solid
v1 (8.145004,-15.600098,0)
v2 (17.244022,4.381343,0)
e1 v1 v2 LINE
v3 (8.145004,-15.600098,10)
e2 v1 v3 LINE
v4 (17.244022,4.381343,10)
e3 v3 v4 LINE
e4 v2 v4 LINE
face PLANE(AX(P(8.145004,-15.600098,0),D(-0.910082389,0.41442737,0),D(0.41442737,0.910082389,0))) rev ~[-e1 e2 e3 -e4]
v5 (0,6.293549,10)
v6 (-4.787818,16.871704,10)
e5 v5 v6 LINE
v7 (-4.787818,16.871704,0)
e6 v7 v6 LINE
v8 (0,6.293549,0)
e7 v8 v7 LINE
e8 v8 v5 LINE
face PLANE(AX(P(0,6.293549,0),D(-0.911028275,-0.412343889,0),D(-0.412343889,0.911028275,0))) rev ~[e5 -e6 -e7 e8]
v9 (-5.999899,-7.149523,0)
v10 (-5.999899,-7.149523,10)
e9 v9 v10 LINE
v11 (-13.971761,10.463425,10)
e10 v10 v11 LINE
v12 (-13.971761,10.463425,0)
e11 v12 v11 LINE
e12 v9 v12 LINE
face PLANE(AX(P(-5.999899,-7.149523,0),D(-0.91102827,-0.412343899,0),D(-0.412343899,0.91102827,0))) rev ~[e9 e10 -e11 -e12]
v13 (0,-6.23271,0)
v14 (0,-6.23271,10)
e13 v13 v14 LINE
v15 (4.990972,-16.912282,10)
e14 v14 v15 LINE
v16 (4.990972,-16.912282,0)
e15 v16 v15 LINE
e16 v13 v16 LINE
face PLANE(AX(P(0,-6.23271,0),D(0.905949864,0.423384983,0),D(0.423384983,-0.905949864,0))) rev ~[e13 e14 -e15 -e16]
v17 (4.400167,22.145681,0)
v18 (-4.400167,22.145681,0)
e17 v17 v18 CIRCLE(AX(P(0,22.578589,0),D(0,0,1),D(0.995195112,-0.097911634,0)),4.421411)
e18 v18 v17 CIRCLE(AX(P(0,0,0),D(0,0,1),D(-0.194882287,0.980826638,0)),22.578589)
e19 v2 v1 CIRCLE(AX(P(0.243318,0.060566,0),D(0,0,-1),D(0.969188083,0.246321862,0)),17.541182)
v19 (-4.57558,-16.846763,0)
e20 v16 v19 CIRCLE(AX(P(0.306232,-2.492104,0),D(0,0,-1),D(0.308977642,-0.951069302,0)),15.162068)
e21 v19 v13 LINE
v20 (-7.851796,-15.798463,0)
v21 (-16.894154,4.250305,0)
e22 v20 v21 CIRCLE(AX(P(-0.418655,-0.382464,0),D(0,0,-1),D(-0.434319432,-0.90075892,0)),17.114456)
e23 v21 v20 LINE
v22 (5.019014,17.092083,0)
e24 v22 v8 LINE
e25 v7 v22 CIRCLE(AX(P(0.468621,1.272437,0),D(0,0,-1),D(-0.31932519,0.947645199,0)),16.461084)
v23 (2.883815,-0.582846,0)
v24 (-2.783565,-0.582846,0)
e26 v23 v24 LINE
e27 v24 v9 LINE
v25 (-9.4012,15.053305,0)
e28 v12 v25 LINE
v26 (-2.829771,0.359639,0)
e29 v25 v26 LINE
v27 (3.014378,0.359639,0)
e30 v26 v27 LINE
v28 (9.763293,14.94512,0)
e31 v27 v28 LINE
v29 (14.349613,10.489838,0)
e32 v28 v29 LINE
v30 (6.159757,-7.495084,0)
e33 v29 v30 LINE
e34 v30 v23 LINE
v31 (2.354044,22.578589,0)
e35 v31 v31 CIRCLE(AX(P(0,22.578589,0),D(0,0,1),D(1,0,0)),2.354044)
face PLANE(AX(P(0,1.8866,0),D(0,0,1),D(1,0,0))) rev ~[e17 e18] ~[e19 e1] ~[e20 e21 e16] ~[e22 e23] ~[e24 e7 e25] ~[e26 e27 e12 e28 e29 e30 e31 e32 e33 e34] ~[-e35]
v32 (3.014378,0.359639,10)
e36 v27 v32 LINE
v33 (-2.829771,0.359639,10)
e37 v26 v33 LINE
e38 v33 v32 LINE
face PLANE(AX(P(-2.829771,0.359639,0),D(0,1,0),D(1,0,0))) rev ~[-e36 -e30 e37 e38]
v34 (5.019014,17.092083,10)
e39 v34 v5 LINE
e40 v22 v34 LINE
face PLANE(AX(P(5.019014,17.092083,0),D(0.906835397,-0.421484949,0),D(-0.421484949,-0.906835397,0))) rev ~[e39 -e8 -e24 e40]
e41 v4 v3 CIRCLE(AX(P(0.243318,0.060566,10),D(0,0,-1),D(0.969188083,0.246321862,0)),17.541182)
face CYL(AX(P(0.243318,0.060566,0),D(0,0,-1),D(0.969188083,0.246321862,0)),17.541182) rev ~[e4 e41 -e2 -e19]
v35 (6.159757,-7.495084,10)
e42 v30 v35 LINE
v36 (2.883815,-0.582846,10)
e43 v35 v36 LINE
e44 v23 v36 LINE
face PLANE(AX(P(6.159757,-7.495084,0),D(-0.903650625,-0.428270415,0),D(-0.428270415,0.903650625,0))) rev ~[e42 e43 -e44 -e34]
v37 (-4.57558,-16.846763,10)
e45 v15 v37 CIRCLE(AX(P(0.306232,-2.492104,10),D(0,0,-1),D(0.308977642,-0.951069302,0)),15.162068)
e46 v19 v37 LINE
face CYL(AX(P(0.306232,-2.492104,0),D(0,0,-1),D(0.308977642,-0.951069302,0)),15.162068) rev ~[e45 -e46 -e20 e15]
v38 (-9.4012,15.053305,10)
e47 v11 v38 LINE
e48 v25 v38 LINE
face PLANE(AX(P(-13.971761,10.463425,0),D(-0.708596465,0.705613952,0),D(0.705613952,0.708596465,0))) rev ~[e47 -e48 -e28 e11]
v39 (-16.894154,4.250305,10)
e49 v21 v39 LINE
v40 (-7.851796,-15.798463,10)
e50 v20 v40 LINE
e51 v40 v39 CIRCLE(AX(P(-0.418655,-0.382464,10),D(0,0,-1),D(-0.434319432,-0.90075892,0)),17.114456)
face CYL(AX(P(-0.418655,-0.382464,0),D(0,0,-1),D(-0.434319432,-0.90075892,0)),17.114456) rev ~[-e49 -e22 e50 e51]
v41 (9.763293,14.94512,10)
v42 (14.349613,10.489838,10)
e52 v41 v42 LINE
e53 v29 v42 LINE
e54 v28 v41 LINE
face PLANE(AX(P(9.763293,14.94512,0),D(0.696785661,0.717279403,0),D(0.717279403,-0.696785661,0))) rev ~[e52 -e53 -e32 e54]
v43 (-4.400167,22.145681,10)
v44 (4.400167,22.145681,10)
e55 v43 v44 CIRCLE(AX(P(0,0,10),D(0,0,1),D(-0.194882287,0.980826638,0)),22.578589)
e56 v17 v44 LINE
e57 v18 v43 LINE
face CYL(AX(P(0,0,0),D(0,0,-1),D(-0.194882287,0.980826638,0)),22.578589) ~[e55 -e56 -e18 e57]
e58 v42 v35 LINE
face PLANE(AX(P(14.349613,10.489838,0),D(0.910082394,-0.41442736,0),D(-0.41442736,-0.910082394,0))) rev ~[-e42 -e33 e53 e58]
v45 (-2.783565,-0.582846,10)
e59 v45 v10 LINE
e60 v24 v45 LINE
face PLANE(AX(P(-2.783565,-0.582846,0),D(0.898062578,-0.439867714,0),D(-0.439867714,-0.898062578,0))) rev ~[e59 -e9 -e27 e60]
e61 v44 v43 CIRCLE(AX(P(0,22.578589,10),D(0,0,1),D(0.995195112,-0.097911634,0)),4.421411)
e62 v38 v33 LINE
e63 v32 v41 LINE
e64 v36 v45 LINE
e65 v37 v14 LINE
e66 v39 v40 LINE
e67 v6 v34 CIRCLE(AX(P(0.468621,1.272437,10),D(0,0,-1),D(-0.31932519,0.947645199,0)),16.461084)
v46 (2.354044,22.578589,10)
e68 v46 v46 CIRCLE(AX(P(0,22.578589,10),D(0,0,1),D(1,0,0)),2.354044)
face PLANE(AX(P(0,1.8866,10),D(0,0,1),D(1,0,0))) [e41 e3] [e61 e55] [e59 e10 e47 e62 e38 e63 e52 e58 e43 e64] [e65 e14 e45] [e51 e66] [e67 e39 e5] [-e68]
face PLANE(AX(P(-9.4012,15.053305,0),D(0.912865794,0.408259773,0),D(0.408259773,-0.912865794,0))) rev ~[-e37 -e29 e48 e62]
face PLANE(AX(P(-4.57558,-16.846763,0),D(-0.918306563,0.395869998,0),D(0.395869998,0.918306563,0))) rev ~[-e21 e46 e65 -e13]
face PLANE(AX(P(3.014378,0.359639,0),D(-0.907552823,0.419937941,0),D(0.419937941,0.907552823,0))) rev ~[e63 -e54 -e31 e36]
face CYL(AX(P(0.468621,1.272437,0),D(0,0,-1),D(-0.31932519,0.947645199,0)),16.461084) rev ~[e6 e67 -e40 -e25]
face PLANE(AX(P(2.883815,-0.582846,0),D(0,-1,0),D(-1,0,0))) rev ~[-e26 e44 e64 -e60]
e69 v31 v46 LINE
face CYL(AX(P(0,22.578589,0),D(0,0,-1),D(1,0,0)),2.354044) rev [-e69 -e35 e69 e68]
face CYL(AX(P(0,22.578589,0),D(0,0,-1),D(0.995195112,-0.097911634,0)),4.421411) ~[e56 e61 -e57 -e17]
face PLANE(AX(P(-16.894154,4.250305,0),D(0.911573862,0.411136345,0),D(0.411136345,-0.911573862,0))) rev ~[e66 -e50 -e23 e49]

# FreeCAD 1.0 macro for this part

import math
import FreeCAD as App
import Part
import Sketcher

V = App.Vector
Q = App.Units.Quantity

doc = App.newDocument("Part")
params = doc.addObject("Spreadsheet::Sheet", "Params")
for row, (alias, value) in enumerate([
    ("pad1_length", "10 mm"),
], start=1):
    params.set(f"A{row}", alias)
    params.set(f"B{row}", "=" + value)
    params.setAlias(f"B{row}", alias)

body = doc.addObject("PartDesign::Body", "Body")

# Sketch on XY plane
sketch1 = body.newObject("Sketcher::SketchObject", "Sketch")
sketch1.AttachmentSupport = (doc.getObject("XY_Plane"), [""])
sketch1.MapMode = "FlatFace"
sketch1.addGeometry([
    Part.ArcOfCircle(Part.Circle(V(0, 22.578589, 0), V(0, 0, 1), 4.421411), math.radians(-5.618926), math.radians(185.618926)),  # 0
    Part.ArcOfCircle(Part.Circle(V(0, 0, 0), V(0, 0, 1), 22.578589), math.radians(101.237847), math.radians(438.762153)),  # 1
    Part.LineSegment(V(-16.894154, 4.250305, 0), V(-7.851796, -15.798463, 0)),  # 2
    Part.ArcOfCircle(Part.Circle(V(-0.418655, -0.382464, 0), V(0, 0, 1), 17.114456), math.radians(164.294473), math.radians(244.258004)),  # 3
    Part.ArcOfCircle(Part.Circle(V(0.306232, -2.492104, 0), V(0, 0, 1), 15.162068), math.radians(-108.782427), math.radians(-72.002371)),  # 4
    Part.LineSegment(V(-4.57558, -16.846763, 0), V(0, -6.23271, 0)),  # 5
    Part.LineSegment(V(0, -6.23271, 0), V(4.990972, -16.912282, 0)),  # 6
    Part.ArcOfCircle(Part.Circle(V(0.243318, 0.060566, 0), V(0, 0, 1), 17.541182), math.radians(-63.226486), math.radians(14.259965)),  # 7
    Part.LineSegment(V(8.145004, -15.600098, 0), V(17.244022, 4.381343, 0)),  # 8
    Part.ArcOfCircle(Part.Circle(V(0.468621, 1.272437, 0), V(0, 0, 1), 16.461084), math.radians(73.952547), math.radians(108.62212)),  # 9
    Part.LineSegment(V(5.019014, 17.092083, 0), V(0, 6.293549, 0)),  # 10
    Part.LineSegment(V(0, 6.293549, 0), V(-4.787818, 16.871704, 0)),  # 11
    Part.Circle(V(0, 22.578589, 0), V(0, 0, 1), 2.354044),  # 12
    Part.LineSegment(V(2.883815, -0.582846, 0), V(-2.783565, -0.582846, 0)),  # 13
    Part.LineSegment(V(-2.783565, -0.582846, 0), V(-5.999899, -7.149523, 0)),  # 14
    Part.LineSegment(V(-5.999899, -7.149523, 0), V(-13.971761, 10.463425, 0)),  # 15
    Part.LineSegment(V(-13.971761, 10.463425, 0), V(-9.4012, 15.053305, 0)),  # 16
    Part.LineSegment(V(-9.4012, 15.053305, 0), V(-2.829771, 0.359639, 0)),  # 17
    Part.LineSegment(V(-2.829771, 0.359639, 0), V(3.014378, 0.359639, 0)),  # 18
    Part.LineSegment(V(3.014378, 0.359639, 0), V(9.763293, 14.94512, 0)),  # 19
    Part.LineSegment(V(9.763293, 14.94512, 0), V(14.349613, 10.489838, 0)),  # 20
    Part.LineSegment(V(14.349613, 10.489838, 0), V(6.159757, -7.495084, 0)),  # 21
    Part.LineSegment(V(6.159757, -7.495084, 0), V(2.883815, -0.582846, 0)),  # 22
], False)
sketch1.addConstraint([
    Sketcher.Constraint("Coincident", 0, 1, 1, 2),
    Sketcher.Constraint("Coincident", 1, 1, 0, 2),
    Sketcher.Constraint("Coincident", 2, 1, 3, 1),
    Sketcher.Constraint("Coincident", 3, 2, 2, 2),
    Sketcher.Constraint("Coincident", 4, 1, 5, 1),
    Sketcher.Constraint("Coincident", 5, 2, 6, 1),
    Sketcher.Constraint("Coincident", 6, 2, 4, 2),
    Sketcher.Constraint("Coincident", 7, 1, 8, 1),
    Sketcher.Constraint("Coincident", 8, 2, 7, 2),
    Sketcher.Constraint("Coincident", 9, 1, 10, 1),
    Sketcher.Constraint("Coincident", 10, 2, 11, 1),
    Sketcher.Constraint("Coincident", 11, 2, 9, 2),
    Sketcher.Constraint("Coincident", 13, 2, 14, 1),
    Sketcher.Constraint("Coincident", 14, 2, 15, 1),
    Sketcher.Constraint("Coincident", 15, 2, 16, 1),
    Sketcher.Constraint("Coincident", 16, 2, 17, 1),
    Sketcher.Constraint("Coincident", 17, 2, 18, 1),
    Sketcher.Constraint("Coincident", 18, 2, 19, 1),
    Sketcher.Constraint("Coincident", 19, 2, 20, 1),
    Sketcher.Constraint("Coincident", 20, 2, 21, 1),
    Sketcher.Constraint("Coincident", 21, 2, 22, 1),
    Sketcher.Constraint("Coincident", 22, 2, 13, 1),
    Sketcher.Constraint("Horizontal", 13),
    Sketcher.Constraint("Horizontal", 18),
    Sketcher.Constraint("Coincident", 1, 3, -1, 1),
    Sketcher.Constraint("Coincident", 12, 3, 0, 3),
    Sketcher.Constraint("PointOnObject", 0, 3, -2),
    Sketcher.Constraint("PointOnObject", 5, 2, -2),
    Sketcher.Constraint("PointOnObject", 10, 2, -2),
    Sketcher.Constraint("Parallel", 11, 15),
    Sketcher.Constraint("Parallel", 8, 21),
    Sketcher.Constraint("Radius", 0, Q("4.421411 mm")),
    Sketcher.Constraint("Radius", 1, Q("22.578589 mm")),
    Sketcher.Constraint("Radius", 4, Q("15.162068 mm")),
    Sketcher.Constraint("Radius", 7, Q("17.541182 mm")),
    Sketcher.Constraint("Diameter", 12, Q("4.708088 mm")),
    Sketcher.Constraint("Radius", 3, Q("17.114456 mm")),
    Sketcher.Constraint("Radius", 9, Q("16.461084 mm")),
    Sketcher.Constraint("DistanceY", 3, 2, 3, 3, Q("15.415999 mm")),
    Sketcher.Constraint("DistanceX", 13, 2, 13, 1, Q("5.66738 mm")),
    Sketcher.Constraint("DistanceX", 18, 1, 18, 2, Q("5.844149 mm")),
    Sketcher.Constraint("DistanceX", 14, 2, -1, 1, Q("5.999899 mm")),
    Sketcher.Constraint("DistanceX", 16, 2, -1, 1, Q("9.4012 mm")),
    Sketcher.Constraint("DistanceY", 3, 3, 9, 3, Q("1.654901 mm")),
    Sketcher.Constraint("DistanceX", 2, 1, 3, 3, Q("16.475499 mm")),
    Sketcher.Constraint("DistanceY", 4, 1, 3, 2, Q("1.0483 mm")),
    Sketcher.Constraint("DistanceX", 3, 2, 7, 1, Q("15.9968 mm")),
    Sketcher.Constraint("DistanceX", 9, 3, 8, 2, Q("16.775401 mm")),
    Sketcher.Constraint("DistanceY", 16, 2, 11, 2, Q("1.818399 mm")),
    Sketcher.Constraint("DistanceX", 9, 1, 20, 2, Q("9.330599 mm")),
    Sketcher.Constraint("DistanceY", 18, 2, 20, 2, Q("10.130199 mm")),
    Sketcher.Constraint("DistanceY", 6, 2, 21, 2, Q("9.417198 mm")),
    Sketcher.Constraint("Distance", 5, Q("11.558289 mm")),
    Sketcher.Constraint("Distance", 6, Q("11.788259 mm")),
    Sketcher.Constraint("Distance", 8, Q("21.95564 mm")),
    Sketcher.Constraint("Distance", 10, Q("11.907932 mm")),
    Sketcher.Constraint("Distance", 14, Q("7.312048 mm")),
    Sketcher.Constraint("Distance", 19, Q("16.07122 mm")),
    Sketcher.Constraint("Distance", 20, Q("6.394049 mm")),
    Sketcher.Constraint("Distance", 21, Q("19.761861 mm")),
    Sketcher.Constraint("DistanceY", -1, 1, 0, 3, Q("22.578589 mm")),
    Sketcher.Constraint("DistanceX", -1, 1, 4, 3, Q("0.306232 mm")),
    Sketcher.Constraint("DistanceX", -1, 1, 9, 3, Q("0.468621 mm")),
    Sketcher.Constraint("DistanceX", 4, 1, -1, 1, Q("4.57558 mm")),
    Sketcher.Constraint("DistanceY", 5, 2, -1, 1, Q("6.23271 mm")),
    Sketcher.Constraint("DistanceY", -1, 1, 10, 2, Q("6.293549 mm")),
    Sketcher.Constraint("DistanceX", 15, 2, -1, 1, Q("13.971761 mm")),
    Sketcher.Constraint("DistanceX", 17, 2, -1, 1, Q("2.829771 mm")),
    Sketcher.Constraint("DistanceY", -1, 1, 17, 2, Q("0.359639 mm")),
    Sketcher.Constraint("DistanceY", 3, 3, 7, 3, Q("0.44303 mm")),
    Sketcher.Constraint("DistanceX", 11, 2, 1, 1, Q("0.387651 mm")),
    Sketcher.Constraint("DistanceX", 13, 2, 3, 3, Q("2.36491 mm")),
    Sketcher.Constraint("DistanceY", 4, 3, 13, 2, Q("1.909258 mm")),
])
pad1 = body.newObject("PartDesign::Pad", "Pad")
pad1.Profile = sketch1
pad1.setExpression("Length", "Params.pad1_length")

doc.recompute()
